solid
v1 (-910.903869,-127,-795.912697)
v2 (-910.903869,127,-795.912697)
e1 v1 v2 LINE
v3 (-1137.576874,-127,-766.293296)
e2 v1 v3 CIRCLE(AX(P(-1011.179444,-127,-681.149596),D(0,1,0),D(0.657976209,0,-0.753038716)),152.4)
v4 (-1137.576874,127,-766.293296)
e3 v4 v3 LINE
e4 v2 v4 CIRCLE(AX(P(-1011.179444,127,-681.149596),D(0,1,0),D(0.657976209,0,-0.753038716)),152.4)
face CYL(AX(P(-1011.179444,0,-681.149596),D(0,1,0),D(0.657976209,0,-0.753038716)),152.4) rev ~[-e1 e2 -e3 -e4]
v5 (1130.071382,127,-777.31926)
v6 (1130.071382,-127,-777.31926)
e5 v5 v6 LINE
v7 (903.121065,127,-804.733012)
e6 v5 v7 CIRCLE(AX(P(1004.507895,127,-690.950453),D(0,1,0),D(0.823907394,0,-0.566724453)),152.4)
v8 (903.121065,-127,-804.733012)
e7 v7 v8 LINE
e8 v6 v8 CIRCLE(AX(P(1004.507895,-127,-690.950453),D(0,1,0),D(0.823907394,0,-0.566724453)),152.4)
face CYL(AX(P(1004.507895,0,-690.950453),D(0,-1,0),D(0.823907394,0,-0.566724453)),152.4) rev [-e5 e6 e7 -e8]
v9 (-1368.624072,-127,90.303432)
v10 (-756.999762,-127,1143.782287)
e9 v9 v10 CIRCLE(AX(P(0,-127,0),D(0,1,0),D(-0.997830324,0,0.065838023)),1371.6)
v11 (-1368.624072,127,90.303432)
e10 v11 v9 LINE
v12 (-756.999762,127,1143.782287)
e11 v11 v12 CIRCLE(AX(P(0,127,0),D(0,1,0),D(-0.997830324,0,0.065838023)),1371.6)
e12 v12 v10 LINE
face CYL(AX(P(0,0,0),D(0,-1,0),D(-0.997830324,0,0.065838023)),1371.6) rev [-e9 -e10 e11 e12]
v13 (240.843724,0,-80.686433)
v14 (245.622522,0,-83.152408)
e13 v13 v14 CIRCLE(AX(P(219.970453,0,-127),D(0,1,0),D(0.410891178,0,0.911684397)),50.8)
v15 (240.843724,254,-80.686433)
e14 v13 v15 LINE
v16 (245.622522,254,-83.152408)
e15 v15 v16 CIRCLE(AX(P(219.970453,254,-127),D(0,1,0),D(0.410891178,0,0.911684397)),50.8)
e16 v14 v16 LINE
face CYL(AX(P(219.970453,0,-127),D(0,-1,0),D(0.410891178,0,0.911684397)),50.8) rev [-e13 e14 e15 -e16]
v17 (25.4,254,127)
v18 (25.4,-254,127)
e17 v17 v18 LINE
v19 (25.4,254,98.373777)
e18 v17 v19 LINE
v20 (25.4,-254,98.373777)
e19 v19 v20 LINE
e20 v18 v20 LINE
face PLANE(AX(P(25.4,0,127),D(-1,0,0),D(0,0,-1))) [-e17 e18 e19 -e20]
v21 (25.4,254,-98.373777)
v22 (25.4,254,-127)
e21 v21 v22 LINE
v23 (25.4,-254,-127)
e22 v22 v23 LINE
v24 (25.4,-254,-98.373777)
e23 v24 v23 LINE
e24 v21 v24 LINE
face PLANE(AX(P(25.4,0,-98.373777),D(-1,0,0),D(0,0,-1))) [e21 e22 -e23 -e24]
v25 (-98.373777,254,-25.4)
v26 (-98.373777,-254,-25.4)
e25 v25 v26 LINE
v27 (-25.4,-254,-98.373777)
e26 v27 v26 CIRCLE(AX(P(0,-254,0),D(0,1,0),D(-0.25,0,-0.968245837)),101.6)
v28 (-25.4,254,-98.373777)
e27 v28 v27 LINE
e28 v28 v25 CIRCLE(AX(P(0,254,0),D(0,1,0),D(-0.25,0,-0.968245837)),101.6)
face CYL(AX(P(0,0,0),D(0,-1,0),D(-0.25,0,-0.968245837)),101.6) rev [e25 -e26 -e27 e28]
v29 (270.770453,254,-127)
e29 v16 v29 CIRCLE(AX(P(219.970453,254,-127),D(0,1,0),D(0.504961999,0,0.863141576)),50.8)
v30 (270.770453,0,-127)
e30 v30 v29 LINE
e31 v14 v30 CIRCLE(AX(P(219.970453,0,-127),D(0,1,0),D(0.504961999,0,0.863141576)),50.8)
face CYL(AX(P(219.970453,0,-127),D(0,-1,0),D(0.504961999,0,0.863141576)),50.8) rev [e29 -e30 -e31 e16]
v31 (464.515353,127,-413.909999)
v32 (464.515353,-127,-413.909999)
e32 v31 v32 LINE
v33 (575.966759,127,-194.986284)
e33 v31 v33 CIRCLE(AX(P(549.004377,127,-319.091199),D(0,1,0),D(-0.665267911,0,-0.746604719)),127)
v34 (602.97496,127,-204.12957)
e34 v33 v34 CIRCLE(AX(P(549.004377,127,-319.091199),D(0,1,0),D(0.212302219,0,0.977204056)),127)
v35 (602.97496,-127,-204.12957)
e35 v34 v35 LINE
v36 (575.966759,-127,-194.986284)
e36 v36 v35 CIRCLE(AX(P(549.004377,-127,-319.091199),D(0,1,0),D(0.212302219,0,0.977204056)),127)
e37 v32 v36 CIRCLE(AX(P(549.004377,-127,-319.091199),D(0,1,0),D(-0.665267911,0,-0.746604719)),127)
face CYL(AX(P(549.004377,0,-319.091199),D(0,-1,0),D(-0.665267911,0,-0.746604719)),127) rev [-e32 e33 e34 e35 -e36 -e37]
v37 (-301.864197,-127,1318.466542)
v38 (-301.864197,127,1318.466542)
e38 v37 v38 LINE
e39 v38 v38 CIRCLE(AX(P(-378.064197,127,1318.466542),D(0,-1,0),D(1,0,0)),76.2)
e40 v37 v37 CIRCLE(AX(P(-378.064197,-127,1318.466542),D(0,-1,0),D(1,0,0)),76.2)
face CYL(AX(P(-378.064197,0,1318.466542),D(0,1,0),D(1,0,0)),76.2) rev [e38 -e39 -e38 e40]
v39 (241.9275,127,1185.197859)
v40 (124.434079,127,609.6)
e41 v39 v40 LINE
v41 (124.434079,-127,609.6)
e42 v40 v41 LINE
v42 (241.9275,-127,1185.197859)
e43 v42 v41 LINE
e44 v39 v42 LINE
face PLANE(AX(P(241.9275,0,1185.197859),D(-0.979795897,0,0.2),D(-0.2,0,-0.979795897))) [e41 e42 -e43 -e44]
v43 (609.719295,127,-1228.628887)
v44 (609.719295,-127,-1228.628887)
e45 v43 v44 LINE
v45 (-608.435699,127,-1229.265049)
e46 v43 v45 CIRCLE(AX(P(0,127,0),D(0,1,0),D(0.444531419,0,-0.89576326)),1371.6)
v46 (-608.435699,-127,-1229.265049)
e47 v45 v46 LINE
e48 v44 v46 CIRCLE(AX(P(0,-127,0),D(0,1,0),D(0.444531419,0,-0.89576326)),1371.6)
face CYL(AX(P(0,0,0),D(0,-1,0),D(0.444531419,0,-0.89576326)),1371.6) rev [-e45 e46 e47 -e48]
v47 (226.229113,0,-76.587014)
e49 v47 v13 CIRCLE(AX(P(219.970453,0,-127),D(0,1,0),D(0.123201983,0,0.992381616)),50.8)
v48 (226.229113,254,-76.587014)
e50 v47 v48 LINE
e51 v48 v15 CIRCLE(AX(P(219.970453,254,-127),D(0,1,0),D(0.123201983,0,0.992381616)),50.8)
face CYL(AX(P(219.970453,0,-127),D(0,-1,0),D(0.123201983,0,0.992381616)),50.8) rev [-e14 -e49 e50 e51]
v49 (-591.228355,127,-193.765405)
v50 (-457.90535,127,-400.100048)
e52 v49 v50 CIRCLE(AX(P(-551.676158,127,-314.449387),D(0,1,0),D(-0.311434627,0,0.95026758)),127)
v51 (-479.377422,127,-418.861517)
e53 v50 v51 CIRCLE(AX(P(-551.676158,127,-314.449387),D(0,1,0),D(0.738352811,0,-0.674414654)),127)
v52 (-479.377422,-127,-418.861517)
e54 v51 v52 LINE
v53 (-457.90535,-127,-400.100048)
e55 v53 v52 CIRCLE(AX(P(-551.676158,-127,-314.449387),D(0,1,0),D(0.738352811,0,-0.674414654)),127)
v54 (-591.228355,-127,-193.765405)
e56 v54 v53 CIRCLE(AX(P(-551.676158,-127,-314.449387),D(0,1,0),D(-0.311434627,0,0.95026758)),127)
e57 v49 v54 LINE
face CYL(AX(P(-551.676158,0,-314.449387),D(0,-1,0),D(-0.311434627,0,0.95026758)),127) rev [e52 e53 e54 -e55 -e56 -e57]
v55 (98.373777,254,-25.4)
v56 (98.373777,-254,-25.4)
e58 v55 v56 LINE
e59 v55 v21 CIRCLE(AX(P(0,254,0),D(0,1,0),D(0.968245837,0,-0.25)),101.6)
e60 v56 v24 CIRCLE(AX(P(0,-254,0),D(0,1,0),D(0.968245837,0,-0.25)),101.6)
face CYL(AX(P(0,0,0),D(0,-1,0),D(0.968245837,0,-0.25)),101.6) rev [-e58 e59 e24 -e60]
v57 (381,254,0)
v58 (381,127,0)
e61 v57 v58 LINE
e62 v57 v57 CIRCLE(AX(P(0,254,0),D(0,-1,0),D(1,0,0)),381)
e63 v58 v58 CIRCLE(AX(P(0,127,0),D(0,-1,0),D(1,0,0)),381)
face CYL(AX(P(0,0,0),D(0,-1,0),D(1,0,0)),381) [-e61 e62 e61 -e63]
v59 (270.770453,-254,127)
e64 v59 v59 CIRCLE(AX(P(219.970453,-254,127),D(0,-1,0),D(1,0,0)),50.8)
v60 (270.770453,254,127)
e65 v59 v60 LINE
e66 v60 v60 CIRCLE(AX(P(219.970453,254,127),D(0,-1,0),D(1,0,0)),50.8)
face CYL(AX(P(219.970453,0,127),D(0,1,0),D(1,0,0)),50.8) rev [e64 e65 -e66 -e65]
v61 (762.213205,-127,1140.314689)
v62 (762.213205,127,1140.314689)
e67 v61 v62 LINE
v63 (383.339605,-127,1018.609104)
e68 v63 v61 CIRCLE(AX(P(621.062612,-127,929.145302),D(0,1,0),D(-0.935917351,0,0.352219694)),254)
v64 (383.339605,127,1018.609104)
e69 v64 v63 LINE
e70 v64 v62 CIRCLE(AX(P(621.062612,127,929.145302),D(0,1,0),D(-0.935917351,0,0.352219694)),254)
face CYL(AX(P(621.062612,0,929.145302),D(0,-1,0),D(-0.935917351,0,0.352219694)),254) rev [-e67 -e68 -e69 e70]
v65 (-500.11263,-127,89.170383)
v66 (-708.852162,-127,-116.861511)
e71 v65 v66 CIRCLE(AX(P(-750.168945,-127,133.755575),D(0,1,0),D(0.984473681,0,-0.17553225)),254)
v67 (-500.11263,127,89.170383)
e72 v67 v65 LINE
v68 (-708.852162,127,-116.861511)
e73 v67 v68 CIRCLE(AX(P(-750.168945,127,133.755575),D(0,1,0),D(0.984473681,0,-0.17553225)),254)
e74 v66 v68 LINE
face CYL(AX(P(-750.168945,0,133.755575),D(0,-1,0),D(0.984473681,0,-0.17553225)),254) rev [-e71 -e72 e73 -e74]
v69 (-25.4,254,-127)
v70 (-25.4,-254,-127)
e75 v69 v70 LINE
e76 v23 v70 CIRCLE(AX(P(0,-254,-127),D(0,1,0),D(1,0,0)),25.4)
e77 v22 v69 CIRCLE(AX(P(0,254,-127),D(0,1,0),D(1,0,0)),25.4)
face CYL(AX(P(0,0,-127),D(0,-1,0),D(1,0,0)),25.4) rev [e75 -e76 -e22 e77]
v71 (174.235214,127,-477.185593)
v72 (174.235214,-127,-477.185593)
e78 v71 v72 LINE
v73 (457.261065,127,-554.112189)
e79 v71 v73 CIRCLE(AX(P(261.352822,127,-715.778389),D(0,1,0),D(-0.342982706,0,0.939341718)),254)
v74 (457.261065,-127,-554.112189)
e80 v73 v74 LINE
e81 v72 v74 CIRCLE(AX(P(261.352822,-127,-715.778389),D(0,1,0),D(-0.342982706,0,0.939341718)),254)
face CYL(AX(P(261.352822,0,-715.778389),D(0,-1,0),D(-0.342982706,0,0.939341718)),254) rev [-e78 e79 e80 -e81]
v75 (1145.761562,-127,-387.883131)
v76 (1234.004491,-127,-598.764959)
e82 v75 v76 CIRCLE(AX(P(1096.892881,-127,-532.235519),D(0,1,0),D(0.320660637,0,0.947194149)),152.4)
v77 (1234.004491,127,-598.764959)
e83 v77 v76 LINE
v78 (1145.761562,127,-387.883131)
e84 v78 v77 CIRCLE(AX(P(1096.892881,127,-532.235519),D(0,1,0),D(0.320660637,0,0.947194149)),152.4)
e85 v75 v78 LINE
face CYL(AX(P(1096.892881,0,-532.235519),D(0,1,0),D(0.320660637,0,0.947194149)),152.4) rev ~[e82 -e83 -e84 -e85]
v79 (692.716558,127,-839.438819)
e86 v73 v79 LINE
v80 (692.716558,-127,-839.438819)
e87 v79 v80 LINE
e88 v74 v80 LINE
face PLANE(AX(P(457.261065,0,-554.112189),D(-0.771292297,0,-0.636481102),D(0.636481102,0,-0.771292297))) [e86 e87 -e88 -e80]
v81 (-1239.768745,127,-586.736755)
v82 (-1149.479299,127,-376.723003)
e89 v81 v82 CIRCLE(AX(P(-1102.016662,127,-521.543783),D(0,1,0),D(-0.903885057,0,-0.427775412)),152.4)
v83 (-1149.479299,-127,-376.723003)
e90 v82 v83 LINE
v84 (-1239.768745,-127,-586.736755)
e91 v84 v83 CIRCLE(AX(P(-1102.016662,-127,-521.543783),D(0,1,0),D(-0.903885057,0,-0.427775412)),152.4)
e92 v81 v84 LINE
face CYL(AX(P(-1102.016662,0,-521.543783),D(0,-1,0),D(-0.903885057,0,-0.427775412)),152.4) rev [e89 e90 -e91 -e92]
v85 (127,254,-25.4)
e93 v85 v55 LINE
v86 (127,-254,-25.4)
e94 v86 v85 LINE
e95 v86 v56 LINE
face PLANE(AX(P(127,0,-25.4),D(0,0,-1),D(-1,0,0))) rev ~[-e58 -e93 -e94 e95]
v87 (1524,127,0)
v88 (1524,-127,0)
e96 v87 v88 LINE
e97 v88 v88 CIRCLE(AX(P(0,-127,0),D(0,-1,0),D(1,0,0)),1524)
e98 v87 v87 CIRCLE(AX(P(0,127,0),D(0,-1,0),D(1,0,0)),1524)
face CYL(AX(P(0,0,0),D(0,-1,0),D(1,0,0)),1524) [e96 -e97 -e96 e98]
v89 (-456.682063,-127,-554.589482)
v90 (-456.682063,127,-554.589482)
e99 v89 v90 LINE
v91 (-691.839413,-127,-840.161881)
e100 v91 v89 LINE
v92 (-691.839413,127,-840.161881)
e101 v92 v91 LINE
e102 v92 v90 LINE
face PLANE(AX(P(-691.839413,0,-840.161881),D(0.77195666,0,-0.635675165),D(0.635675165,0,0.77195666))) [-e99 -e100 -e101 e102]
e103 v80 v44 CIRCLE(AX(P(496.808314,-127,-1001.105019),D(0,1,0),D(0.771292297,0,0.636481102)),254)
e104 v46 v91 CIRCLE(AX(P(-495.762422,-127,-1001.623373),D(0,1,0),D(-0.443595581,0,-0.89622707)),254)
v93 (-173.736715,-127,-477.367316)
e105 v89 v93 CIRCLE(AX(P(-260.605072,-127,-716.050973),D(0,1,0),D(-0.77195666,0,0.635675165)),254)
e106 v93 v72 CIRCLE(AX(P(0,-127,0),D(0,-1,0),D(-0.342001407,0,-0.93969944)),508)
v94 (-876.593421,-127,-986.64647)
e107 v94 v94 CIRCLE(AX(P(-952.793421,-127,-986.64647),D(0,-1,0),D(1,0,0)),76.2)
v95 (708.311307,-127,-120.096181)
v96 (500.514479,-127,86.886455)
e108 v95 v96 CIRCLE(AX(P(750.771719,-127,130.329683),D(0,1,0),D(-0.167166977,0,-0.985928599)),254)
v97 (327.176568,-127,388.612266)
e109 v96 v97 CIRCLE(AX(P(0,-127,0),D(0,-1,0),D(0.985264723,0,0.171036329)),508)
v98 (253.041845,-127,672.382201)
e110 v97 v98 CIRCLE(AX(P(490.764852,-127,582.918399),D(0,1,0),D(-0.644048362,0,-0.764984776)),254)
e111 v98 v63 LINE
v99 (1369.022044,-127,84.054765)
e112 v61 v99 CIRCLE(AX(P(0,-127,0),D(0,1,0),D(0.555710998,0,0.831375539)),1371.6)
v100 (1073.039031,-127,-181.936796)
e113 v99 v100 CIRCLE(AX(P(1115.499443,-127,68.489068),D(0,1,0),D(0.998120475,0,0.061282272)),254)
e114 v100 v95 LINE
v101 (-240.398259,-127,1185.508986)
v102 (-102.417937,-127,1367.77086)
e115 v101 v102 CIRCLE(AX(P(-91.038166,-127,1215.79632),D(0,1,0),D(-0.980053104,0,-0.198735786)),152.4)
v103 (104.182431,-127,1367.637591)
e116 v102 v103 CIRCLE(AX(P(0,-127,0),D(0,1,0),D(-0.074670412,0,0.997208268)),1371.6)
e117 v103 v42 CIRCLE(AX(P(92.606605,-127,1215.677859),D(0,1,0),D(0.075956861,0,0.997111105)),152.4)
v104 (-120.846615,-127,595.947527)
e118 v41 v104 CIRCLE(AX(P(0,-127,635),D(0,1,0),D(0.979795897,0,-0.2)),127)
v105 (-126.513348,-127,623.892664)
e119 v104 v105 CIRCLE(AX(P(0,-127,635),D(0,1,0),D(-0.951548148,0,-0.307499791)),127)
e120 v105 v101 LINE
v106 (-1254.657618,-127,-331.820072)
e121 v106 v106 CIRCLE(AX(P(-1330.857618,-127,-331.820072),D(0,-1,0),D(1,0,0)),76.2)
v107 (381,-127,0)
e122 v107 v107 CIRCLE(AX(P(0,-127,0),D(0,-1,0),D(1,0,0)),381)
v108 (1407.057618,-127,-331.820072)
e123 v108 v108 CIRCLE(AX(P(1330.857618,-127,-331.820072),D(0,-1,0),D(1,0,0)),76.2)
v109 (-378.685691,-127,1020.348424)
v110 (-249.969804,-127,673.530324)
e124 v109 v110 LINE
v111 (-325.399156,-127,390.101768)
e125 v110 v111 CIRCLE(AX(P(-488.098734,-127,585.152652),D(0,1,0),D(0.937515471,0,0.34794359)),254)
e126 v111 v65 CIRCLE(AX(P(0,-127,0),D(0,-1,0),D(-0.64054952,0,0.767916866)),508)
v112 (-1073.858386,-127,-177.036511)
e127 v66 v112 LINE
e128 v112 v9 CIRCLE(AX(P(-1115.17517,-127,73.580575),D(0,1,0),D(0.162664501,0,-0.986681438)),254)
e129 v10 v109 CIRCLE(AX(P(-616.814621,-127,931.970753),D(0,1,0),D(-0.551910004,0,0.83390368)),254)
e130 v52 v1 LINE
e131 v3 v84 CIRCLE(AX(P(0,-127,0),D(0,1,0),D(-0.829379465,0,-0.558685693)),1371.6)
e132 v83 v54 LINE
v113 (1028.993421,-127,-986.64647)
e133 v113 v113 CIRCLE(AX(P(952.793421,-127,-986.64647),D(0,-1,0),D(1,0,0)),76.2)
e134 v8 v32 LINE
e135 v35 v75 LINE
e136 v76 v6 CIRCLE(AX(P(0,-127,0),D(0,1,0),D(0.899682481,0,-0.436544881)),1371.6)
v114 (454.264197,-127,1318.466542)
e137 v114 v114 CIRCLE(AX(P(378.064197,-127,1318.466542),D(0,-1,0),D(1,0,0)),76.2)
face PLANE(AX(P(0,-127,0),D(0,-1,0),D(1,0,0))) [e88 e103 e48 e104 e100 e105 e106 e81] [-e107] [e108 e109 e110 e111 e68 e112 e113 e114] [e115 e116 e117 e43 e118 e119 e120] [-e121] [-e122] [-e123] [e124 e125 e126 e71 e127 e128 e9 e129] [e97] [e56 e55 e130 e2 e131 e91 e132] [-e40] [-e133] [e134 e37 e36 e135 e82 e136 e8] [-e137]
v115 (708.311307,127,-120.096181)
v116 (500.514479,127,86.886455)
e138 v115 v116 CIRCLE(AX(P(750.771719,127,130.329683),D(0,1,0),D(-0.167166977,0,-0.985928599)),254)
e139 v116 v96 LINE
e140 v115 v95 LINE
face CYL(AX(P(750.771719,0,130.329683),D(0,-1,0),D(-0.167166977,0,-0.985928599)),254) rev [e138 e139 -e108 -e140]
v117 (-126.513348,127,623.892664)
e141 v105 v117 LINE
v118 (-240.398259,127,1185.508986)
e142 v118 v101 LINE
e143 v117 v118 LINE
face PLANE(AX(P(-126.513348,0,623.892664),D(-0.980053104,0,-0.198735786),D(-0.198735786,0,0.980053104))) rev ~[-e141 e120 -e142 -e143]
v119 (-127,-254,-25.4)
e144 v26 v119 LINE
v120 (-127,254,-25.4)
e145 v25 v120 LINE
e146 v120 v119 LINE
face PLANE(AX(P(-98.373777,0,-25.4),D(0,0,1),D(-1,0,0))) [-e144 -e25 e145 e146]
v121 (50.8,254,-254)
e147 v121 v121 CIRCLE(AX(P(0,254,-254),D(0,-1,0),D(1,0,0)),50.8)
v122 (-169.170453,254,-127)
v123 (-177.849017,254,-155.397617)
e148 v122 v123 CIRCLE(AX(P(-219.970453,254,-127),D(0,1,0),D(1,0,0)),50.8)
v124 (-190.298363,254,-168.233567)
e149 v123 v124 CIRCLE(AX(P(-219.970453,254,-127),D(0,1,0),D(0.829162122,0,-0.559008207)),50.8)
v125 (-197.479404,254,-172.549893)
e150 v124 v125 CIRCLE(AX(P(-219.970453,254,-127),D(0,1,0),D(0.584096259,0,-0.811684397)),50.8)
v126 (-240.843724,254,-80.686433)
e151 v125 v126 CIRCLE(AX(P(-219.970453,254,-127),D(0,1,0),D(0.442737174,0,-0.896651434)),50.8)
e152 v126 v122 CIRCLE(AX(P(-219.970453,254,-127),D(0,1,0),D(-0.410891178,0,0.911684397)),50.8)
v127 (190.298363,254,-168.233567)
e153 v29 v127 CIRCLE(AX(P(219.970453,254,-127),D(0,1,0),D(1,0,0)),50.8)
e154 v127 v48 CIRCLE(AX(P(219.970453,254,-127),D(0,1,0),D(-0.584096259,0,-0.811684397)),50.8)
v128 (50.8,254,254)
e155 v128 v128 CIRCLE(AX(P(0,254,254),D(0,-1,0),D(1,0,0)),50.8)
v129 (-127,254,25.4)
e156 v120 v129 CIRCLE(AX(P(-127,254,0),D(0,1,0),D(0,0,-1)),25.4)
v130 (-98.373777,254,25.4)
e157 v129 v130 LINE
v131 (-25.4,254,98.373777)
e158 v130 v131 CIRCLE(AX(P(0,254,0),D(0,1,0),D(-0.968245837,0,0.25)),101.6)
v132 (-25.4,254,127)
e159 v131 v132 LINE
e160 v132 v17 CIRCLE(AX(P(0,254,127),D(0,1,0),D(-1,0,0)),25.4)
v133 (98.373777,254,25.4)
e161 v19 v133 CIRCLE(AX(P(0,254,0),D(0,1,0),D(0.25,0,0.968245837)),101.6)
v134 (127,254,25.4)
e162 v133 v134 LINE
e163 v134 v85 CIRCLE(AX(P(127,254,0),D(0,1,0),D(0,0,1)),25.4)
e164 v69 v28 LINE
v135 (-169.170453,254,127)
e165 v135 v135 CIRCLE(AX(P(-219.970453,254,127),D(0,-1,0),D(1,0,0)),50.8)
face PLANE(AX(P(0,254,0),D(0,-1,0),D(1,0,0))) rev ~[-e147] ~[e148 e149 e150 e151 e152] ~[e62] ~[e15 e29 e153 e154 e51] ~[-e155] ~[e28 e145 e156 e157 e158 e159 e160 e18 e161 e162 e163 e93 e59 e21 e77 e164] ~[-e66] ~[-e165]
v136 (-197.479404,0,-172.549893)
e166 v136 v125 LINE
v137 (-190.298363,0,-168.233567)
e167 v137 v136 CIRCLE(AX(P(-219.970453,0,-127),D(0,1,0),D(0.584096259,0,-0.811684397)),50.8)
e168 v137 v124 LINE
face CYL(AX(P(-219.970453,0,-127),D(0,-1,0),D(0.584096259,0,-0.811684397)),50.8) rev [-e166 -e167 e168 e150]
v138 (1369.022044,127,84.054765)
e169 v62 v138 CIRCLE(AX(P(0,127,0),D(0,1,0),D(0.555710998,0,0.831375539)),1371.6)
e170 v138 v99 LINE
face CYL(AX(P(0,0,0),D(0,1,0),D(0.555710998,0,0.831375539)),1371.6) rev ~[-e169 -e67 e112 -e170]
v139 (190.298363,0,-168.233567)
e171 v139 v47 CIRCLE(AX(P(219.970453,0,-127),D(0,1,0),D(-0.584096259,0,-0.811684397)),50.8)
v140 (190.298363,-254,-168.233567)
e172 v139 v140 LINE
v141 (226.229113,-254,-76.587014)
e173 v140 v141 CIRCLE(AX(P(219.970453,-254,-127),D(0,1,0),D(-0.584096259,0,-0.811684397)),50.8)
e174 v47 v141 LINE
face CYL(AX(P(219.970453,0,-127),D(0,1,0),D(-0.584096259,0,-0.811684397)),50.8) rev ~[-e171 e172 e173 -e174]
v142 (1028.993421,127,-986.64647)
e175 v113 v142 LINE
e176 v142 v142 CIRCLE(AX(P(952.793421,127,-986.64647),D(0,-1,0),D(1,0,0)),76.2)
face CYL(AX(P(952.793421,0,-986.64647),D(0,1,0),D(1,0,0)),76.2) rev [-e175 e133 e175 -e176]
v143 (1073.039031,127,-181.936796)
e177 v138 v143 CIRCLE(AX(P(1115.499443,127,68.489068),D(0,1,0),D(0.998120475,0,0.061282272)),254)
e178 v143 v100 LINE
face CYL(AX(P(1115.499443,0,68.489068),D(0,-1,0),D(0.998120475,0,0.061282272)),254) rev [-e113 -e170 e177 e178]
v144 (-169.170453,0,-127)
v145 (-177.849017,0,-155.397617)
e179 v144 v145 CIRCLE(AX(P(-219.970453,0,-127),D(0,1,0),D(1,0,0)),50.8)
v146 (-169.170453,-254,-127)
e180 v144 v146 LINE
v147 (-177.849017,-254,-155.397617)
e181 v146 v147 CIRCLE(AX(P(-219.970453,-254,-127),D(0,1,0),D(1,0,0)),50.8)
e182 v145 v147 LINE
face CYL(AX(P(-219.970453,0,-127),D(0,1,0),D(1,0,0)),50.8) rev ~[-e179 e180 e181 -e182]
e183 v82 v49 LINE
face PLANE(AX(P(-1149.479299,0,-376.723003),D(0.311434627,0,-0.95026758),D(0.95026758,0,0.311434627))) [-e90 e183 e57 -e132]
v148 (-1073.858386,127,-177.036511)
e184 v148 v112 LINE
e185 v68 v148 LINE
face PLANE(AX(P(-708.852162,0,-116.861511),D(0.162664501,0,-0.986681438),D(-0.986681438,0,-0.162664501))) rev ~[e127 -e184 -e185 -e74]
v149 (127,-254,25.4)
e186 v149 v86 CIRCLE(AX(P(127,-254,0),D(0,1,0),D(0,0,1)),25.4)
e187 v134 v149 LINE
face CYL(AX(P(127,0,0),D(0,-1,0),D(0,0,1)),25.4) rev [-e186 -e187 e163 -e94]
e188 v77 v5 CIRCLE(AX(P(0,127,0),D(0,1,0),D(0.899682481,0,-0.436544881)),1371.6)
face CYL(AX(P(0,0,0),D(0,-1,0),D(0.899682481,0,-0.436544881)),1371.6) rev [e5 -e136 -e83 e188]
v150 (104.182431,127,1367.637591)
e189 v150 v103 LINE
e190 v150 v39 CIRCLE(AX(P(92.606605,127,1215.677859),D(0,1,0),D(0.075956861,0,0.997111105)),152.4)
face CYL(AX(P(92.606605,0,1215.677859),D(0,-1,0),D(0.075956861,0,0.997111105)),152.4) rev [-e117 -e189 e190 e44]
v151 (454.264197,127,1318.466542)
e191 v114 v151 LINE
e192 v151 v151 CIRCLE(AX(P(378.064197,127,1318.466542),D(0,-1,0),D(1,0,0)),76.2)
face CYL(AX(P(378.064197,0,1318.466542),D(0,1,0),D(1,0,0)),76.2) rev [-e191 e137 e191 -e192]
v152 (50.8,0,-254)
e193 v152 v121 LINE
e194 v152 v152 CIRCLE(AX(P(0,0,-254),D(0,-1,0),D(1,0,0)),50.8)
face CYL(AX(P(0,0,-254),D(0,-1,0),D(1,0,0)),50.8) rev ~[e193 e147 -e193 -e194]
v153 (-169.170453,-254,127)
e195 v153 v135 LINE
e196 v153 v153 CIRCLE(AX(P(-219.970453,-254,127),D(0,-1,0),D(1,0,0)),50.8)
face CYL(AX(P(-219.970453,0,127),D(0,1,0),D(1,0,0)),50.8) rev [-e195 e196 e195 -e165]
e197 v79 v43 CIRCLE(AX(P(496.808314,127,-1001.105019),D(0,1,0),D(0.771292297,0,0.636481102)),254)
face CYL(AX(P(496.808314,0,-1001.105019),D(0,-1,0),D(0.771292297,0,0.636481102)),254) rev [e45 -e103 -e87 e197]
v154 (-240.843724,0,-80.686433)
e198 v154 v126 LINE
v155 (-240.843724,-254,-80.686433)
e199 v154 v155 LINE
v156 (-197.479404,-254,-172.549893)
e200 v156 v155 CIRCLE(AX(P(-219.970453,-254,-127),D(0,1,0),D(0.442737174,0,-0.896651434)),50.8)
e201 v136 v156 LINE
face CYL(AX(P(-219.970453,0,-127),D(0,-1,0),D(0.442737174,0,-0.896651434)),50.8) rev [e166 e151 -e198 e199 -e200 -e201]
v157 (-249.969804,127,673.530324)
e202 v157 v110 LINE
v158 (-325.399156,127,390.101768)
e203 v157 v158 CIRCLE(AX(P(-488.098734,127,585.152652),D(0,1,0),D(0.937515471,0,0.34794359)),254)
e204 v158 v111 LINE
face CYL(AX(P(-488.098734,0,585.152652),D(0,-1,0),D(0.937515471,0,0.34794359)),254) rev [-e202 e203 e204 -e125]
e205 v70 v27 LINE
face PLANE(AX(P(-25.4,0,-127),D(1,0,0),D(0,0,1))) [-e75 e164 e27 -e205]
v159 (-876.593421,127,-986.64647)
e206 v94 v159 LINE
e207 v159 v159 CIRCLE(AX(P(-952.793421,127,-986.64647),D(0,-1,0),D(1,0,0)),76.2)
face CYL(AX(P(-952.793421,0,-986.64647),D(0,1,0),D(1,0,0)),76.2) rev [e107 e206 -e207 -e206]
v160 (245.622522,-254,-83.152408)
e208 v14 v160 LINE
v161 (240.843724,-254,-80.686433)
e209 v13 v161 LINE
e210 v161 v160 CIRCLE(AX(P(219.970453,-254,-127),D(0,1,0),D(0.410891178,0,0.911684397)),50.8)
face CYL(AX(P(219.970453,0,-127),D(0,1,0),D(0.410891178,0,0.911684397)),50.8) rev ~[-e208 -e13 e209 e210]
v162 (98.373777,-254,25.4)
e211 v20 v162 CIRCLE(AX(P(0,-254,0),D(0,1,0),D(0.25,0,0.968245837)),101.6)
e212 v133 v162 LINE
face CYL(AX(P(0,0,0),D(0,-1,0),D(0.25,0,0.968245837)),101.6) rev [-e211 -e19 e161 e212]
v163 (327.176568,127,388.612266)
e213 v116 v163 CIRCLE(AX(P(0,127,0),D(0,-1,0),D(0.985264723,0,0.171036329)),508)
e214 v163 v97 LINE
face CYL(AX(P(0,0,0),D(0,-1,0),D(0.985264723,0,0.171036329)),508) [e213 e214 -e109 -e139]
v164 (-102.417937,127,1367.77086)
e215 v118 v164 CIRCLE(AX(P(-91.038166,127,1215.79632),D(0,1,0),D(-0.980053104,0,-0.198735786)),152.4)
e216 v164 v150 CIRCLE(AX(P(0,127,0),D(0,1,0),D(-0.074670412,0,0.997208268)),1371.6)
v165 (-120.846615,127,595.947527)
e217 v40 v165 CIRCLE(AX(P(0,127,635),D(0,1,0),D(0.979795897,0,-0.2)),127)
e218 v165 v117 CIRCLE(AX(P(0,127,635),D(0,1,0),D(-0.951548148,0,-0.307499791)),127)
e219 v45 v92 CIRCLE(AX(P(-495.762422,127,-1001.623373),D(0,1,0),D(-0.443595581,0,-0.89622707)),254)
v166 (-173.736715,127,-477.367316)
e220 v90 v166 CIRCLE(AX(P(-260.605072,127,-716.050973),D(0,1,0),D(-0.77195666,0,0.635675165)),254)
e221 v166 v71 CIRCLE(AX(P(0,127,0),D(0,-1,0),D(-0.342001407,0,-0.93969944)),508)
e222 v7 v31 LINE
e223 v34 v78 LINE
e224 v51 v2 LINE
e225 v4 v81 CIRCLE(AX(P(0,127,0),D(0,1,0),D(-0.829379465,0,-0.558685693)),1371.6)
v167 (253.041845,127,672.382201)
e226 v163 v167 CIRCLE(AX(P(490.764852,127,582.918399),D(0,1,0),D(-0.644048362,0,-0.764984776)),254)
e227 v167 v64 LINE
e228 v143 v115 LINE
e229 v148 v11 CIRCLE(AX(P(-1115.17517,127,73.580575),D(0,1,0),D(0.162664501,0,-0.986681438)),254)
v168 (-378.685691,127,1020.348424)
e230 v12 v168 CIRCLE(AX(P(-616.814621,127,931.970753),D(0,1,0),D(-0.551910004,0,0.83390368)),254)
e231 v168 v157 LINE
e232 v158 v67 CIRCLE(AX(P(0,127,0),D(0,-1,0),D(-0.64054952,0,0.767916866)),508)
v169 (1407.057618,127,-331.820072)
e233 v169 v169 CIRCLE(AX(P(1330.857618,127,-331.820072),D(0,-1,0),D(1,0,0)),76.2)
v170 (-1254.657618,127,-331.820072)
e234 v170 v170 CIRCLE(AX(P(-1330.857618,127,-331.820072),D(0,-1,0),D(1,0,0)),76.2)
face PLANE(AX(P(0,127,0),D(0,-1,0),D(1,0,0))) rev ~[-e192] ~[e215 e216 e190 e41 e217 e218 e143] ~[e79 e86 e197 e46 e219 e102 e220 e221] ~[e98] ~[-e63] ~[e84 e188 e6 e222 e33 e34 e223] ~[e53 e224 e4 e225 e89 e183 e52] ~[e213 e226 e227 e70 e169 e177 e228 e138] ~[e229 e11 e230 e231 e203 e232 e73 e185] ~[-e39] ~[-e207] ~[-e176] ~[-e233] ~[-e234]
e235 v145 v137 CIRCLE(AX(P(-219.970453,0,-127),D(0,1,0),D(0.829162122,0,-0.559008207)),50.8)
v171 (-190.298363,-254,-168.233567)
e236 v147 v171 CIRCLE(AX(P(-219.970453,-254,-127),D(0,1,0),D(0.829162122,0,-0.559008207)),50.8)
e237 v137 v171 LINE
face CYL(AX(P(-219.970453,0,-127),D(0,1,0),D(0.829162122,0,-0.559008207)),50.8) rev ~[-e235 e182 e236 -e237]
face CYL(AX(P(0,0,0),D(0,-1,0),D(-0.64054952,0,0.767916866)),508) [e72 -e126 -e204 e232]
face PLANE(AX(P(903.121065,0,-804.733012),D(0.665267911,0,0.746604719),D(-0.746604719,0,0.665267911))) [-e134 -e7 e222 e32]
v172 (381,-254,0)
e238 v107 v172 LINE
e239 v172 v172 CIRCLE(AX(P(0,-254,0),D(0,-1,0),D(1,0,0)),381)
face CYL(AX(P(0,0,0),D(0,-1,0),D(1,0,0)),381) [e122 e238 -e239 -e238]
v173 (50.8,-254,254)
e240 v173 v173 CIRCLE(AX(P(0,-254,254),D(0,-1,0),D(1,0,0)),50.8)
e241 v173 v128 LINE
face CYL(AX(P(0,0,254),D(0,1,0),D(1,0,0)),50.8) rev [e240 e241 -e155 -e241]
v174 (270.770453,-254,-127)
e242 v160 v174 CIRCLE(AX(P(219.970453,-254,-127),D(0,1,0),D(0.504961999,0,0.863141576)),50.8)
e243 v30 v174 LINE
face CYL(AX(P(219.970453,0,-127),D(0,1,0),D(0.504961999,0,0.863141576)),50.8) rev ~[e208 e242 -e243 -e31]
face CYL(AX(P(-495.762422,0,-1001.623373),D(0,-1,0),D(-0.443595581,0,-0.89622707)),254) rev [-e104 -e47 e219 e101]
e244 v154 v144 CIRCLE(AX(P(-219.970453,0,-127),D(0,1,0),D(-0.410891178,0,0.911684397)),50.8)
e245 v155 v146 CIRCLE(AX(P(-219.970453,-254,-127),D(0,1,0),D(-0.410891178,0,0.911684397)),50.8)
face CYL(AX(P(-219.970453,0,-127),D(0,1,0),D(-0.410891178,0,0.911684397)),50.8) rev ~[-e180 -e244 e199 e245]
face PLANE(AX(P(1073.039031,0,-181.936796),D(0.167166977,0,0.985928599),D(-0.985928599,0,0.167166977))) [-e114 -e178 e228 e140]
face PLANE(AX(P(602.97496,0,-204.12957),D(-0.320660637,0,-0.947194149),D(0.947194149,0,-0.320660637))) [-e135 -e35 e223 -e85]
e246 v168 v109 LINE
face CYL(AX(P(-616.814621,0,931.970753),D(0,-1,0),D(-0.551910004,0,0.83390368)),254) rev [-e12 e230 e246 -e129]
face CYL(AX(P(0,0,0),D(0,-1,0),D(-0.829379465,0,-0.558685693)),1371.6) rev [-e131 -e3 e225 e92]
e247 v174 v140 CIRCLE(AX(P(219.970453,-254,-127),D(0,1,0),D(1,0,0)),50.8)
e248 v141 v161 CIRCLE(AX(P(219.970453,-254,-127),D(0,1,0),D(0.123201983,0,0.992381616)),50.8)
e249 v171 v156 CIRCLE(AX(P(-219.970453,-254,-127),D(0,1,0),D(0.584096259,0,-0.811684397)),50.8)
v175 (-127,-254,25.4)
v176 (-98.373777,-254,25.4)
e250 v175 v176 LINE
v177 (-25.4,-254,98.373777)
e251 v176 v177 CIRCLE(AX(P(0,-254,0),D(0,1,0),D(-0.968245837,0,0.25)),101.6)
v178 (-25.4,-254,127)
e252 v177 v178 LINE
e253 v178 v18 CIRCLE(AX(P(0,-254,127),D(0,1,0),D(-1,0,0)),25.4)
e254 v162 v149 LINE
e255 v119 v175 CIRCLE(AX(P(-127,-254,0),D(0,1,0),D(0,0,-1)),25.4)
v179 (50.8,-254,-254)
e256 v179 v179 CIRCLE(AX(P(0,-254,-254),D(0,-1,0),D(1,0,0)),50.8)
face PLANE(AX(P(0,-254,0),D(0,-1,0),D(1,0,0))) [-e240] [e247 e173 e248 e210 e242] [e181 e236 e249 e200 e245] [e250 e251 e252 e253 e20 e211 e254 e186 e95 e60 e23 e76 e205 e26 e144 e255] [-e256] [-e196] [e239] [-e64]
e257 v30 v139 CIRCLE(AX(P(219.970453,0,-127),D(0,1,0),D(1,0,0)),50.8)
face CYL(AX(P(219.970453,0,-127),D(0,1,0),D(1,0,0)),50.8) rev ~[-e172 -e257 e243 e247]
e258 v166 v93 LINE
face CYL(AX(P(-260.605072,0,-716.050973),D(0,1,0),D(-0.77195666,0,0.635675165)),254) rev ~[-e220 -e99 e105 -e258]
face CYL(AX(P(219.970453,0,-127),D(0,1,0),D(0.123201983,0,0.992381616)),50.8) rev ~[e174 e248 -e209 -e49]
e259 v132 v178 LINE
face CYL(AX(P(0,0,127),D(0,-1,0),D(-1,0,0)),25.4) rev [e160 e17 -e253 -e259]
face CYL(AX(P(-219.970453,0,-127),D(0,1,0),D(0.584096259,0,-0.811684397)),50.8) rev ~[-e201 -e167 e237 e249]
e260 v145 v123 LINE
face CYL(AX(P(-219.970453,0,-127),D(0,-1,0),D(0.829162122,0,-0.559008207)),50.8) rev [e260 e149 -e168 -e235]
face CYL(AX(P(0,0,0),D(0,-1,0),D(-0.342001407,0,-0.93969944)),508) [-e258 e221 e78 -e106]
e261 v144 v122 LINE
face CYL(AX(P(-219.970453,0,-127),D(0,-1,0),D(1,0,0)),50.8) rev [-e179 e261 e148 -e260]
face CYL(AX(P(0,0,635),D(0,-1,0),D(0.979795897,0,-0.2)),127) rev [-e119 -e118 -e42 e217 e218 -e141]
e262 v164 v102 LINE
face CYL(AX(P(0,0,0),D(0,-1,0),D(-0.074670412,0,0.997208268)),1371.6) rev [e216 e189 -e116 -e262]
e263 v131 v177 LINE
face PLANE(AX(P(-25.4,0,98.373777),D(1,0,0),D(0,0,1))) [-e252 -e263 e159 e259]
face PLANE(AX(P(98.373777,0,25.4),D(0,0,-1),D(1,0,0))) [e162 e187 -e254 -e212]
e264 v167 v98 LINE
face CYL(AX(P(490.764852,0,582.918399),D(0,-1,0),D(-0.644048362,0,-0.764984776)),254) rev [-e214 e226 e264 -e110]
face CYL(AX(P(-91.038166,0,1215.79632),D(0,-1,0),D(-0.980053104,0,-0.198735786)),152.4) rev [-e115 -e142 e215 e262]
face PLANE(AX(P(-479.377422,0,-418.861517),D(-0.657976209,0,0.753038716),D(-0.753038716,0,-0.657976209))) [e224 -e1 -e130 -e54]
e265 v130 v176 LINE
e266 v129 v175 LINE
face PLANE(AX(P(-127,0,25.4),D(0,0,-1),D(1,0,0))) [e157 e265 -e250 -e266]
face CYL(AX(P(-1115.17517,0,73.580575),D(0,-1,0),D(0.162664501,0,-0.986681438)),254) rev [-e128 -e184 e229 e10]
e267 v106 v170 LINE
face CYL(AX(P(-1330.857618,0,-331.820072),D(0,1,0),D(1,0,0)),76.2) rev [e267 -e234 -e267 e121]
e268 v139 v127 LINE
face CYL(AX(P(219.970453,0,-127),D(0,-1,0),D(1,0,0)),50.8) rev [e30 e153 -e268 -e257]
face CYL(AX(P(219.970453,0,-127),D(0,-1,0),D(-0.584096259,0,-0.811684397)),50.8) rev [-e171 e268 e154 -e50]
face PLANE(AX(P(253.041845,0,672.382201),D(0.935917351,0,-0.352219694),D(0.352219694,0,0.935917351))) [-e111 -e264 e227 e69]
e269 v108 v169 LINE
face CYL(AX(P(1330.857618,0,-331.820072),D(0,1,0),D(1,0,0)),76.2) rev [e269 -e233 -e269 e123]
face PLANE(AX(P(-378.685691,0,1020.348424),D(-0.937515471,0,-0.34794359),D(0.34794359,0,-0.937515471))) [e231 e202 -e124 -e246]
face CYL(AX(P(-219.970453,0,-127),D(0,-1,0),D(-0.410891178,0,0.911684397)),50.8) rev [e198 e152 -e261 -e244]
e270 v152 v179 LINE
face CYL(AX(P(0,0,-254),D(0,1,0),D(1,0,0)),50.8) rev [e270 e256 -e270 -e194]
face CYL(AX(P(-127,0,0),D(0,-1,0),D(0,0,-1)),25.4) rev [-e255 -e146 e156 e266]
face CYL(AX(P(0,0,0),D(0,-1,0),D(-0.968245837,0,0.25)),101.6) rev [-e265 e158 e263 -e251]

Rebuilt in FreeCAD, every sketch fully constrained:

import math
import FreeCAD as App
import Part
import Sketcher

V = App.Vector
Q = App.Units.Quantity

doc = App.newDocument("Part")
body = doc.addObject("PartDesign::Body", "Body")

# Sketch on XZ plane
sketch1 = doc.addObject("Sketcher::SketchObject", "Sketch")
body.addObject(sketch1)
sketch1.AttachmentSupport = (doc.XZ_Plane, [""])
sketch1.MapMode = "FlatFace"
sketch1.addGeometry([
    Part.Circle(V(0, 0, 0), V(0, 0, 1), 1524),  # 0
    Part.Circle(V(-953, -987, 0), V(0, 0, 1), 76),  # 1
    Part.ArcOfCircle(Part.Circle(V(-552, -314, 0), V(0, 0, 1), 127), math.radians(-42), math.radians(108)),  # 2
    Part.ArcOfCircle(Part.Circle(V(-552, -314, 0), V(0, 0, 1), 127), math.radians(-55.3), math.radians(-42.41)),  # 3
    Part.LineSegment(V(-479, -419, 0), V(-911, -796, 0)),  # 4
    Part.ArcOfCircle(Part.Circle(V(-1011, -681, 0), V(0, 0, 1), 152), math.radians(-146), math.radians(-49)),  # 5
    Part.ArcOfCircle(Part.Circle(V(0, 0, 0), V(0, 0, 1), 1372), math.radians(-154.67), math.radians(-146.04)),  # 6
    Part.ArcOfCircle(Part.Circle(V(-1102, -522, 0), V(0, 0, 1), 152), math.radians(108), math.radians(205)),  # 7
    Part.LineSegment(V(-1149, -377, 0), V(-591, -194, 0)),  # 8
    Part.Circle(V(-1331, -332, 0), V(0, 0, 1), 76),  # 9
    Part.Circle(V(0, 0, 0), V(0, 0, 1), 381),  # 10
    Part.ArcOfCircle(Part.Circle(V(497, -1001, 0), V(0, 0, 1), 254), math.radians(-64), math.radians(40)),  # 11
    Part.ArcOfCircle(Part.Circle(V(0, 0, 0), V(0, 0, 1), 1372), math.radians(-116), math.radians(-64)),  # 12
    Part.ArcOfCircle(Part.Circle(V(-496, -1002, 0), V(0, 0, 1), 254), math.radians(141), math.radians(244)),  # 13
    Part.LineSegment(V(-692, -840, 0), V(-457, -555, 0)),  # 14
    Part.ArcOfCircle(Part.Circle(V(-261, -716, 0), V(0, 0, 1), 254), math.radians(70), math.radians(141)),  # 15
    Part.ArcOfCircle(Part.Circle(V(0, 0, 0), V(0, 0, 1), 508), math.radians(-110), math.radians(-70)),  # 16
    Part.ArcOfCircle(Part.Circle(V(261, -716, 0), V(0, 0, 1), 254), math.radians(40), math.radians(110)),  # 17
    Part.LineSegment(V(457, -554, 0), V(693, -839, 0)),  # 18
    Part.Circle(V(953, -987, 0), V(0, 0, 1), 76),  # 19
    Part.ArcOfCircle(Part.Circle(V(549, -319, 0), V(0, 0, 1), 127), math.radians(78), math.radians(228)),  # 20
    Part.ArcOfCircle(Part.Circle(V(549, -319, 0), V(0, 0, 1), 127), math.radians(64.85), math.radians(77.74)),  # 21
    Part.LineSegment(V(603, -204, 0), V(1146, -388, 0)),  # 22
    Part.ArcOfCircle(Part.Circle(V(1097, -532, 0), V(0, 0, 1), 152), math.radians(-26), math.radians(71)),  # 23
    Part.ArcOfCircle(Part.Circle(V(0, 0, 0), V(0, 0, 1), 1372), math.radians(-34.52), math.radians(-25.88)),  # 24
    Part.ArcOfCircle(Part.Circle(V(1005, -691, 0), V(0, 0, 1), 152), math.radians(-132), math.radians(-35)),  # 25
    Part.LineSegment(V(903, -805, 0), V(465, -414, 0)),  # 26
    Part.Circle(V(1331, -332, 0), V(0, 0, 1), 76),  # 27
    Part.LineSegment(V(-379, 1020, 0), V(-250, 674, 0)),  # 28
    Part.ArcOfCircle(Part.Circle(V(-488, 585, 0), V(0, 0, 1), 254), math.radians(-50), math.radians(20)),  # 29
    Part.ArcOfCircle(Part.Circle(V(0, 0, 0), V(0, 0, 1), 508), math.radians(130), math.radians(170)),  # 30
    Part.ArcOfCircle(Part.Circle(V(-750, 134, 0), V(0, 0, 1), 254), math.radians(-81), math.radians(-10)),  # 31
    Part.LineSegment(V(-709, -117, 0), V(-1074, -177, 0)),  # 32
    Part.ArcOfCircle(Part.Circle(V(-1115, 74, 0), V(0, 0, 1), 254), math.radians(176), math.radians(279)),  # 33
    Part.ArcOfCircle(Part.Circle(V(0, 0, 0), V(0, 0, 1), 1372), math.radians(123), math.radians(176)),  # 34
    Part.ArcOfCircle(Part.Circle(V(-617, 932, 0), V(0, 0, 1), 254), math.radians(20), math.radians(123)),  # 35
    Part.Circle(V(-378, 1318, 0), V(0, 0, 1), 76),  # 36
    Part.ArcOfCircle(Part.Circle(V(0, 0, 0), V(0, 0, 1), 508), math.radians(10), math.radians(50)),  # 37
    Part.ArcOfCircle(Part.Circle(V(491, 583, 0), V(0, 0, 1), 254), math.radians(159), math.radians(230)),  # 38
    Part.LineSegment(V(253, 672, 0), V(383, 1019, 0)),  # 39
    Part.ArcOfCircle(Part.Circle(V(621, 929, 0), V(0, 0, 1), 254), math.radians(56), math.radians(159)),  # 40
    Part.ArcOfCircle(Part.Circle(V(0, 0, 0), V(0, 0, 1), 1372), math.radians(4), math.radians(56)),  # 41
    Part.ArcOfCircle(Part.Circle(V(1115, 68, 0), V(0, 0, 1), 254), math.radians(-100), math.radians(4)),  # 42
    Part.LineSegment(V(1073, -182, 0), V(708, -120, 0)),  # 43
    Part.ArcOfCircle(Part.Circle(V(751, 130, 0), V(0, 0, 1), 254), math.radians(-170), math.radians(-100)),  # 44
    Part.LineSegment(V(242, 1185, 0), V(124, 610, 0)),  # 45
    Part.ArcOfCircle(Part.Circle(V(0, 635, 0), V(0, 0, 1), 127), math.radians(-162), math.radians(-12)),  # 46
    Part.ArcOfCircle(Part.Circle(V(0, 635, 0), V(0, 0, 1), 127), math.radians(-174.98), math.radians(-162.09)),  # 47
    Part.LineSegment(V(-127, 624, 0), V(-240, 1186, 0)),  # 48
    Part.ArcOfCircle(Part.Circle(V(-91, 1216, 0), V(0, 0, 1), 152), math.radians(94), math.radians(191)),  # 49
    Part.ArcOfCircle(Part.Circle(V(0, 0, 0), V(0, 0, 1), 1372), math.radians(85.64), math.radians(94.28)),  # 50
    Part.ArcOfCircle(Part.Circle(V(93, 1216, 0), V(0, 0, 1), 152), math.radians(-12), math.radians(86)),  # 51
    Part.Circle(V(378, 1318, 0), V(0, 0, 1), 76),  # 52
], False)
sketch1.addConstraint([
    Sketcher.Constraint("Tangent", 2, 1, 3, 2),
    Sketcher.Constraint("Coincident", 3, 1, 4, 1),
    Sketcher.Constraint("Tangent", 4, 2, 5, 2),
    Sketcher.Constraint("Tangent", 5, 1, 6, 2),
    Sketcher.Constraint("Tangent", 6, 1, 7, 2),
    Sketcher.Constraint("Tangent", 7, 1, 8, 1),
    Sketcher.Constraint("Tangent", 8, 2, 2, 2),
    Sketcher.Constraint("Tangent", 11, 1, 12, 2),
    Sketcher.Constraint("Tangent", 12, 1, 13, 2),
    Sketcher.Constraint("Tangent", 13, 1, 14, 1),
    Sketcher.Constraint("Tangent", 14, 2, 15, 2),
    Sketcher.Constraint("Tangent", 15, 1, 16, 1),
    Sketcher.Constraint("Tangent", 16, 2, 17, 2),
    Sketcher.Constraint("Tangent", 17, 1, 18, 1),
    Sketcher.Constraint("Tangent", 18, 2, 11, 2),
    Sketcher.Constraint("Tangent", 20, 1, 21, 2),
    Sketcher.Constraint("Coincident", 21, 1, 22, 1),
    Sketcher.Constraint("Tangent", 22, 2, 23, 2),
    Sketcher.Constraint("Tangent", 23, 1, 24, 2),
    Sketcher.Constraint("Tangent", 24, 1, 25, 2),
    Sketcher.Constraint("Tangent", 25, 1, 26, 1),
    Sketcher.Constraint("Tangent", 26, 2, 20, 2),
    Sketcher.Constraint("Tangent", 28, 2, 29, 2),
    Sketcher.Constraint("Tangent", 29, 1, 30, 1),
    Sketcher.Constraint("Tangent", 30, 2, 31, 2),
    Sketcher.Constraint("Tangent", 31, 1, 32, 1),
    Sketcher.Constraint("Tangent", 32, 2, 33, 2),
    Sketcher.Constraint("Tangent", 33, 1, 34, 2),
    Sketcher.Constraint("Tangent", 34, 1, 35, 2),
    Sketcher.Constraint("Tangent", 35, 1, 28, 1),
    Sketcher.Constraint("Tangent", 37, 2, 38, 2),
    Sketcher.Constraint("Tangent", 38, 1, 39, 1),
    Sketcher.Constraint("Tangent", 39, 2, 40, 2),
    Sketcher.Constraint("Tangent", 40, 1, 41, 2),
    Sketcher.Constraint("Tangent", 41, 1, 42, 2),
    Sketcher.Constraint("Tangent", 42, 1, 43, 1),
    Sketcher.Constraint("Tangent", 43, 2, 44, 2),
    Sketcher.Constraint("Tangent", 44, 1, 37, 1),
    Sketcher.Constraint("Tangent", 45, 2, 46, 2),
    Sketcher.Constraint("Tangent", 46, 1, 47, 2),
    Sketcher.Constraint("Coincident", 47, 1, 48, 1),
    Sketcher.Constraint("Tangent", 48, 2, 49, 2),
    Sketcher.Constraint("Tangent", 49, 1, 50, 2),
    Sketcher.Constraint("Tangent", 50, 1, 51, 2),
    Sketcher.Constraint("Tangent", 51, 1, 45, 1),
    Sketcher.Constraint("Coincident", 0, 3, -1, 1),
    Sketcher.Constraint("Coincident", 6, 3, -1, 1),
    Sketcher.Constraint("Coincident", 10, 3, -1, 1),
    Sketcher.Constraint("Coincident", 12, 3, -1, 1),
    Sketcher.Constraint("Coincident", 16, 3, -1, 1),
    Sketcher.Constraint("Coincident", 24, 3, -1, 1),
    Sketcher.Constraint("Coincident", 30, 3, -1, 1),
    Sketcher.Constraint("Coincident", 34, 3, -1, 1),
    Sketcher.Constraint("Coincident", 37, 3, -1, 1),
    Sketcher.Constraint("Coincident", 41, 3, -1, 1),
    Sketcher.Constraint("Coincident", 50, 3, -1, 1),
    Sketcher.Constraint("Equal", 2, 3),
    Sketcher.Constraint("Equal", 5, 7),
    Sketcher.Constraint("Equal", 1, 9),
    Sketcher.Constraint("Equal", 6, 12),
    Sketcher.Constraint("Equal", 11, 13),
    Sketcher.Constraint("Equal", 13, 15),
    Sketcher.Constraint("Equal", 15, 17),
    Sketcher.Constraint("Equal", 9, 19),
    Sketcher.Constraint("Equal", 3, 20),
    Sketcher.Constraint("Equal", 20, 21),
    Sketcher.Constraint("Equal", 7, 23),
    Sketcher.Constraint("Equal", 12, 24),
    Sketcher.Constraint("Equal", 23, 25),
    Sketcher.Constraint("Equal", 19, 27),
    Sketcher.Constraint("Equal", 17, 29),
    Sketcher.Constraint("Equal", 16, 30),
    Sketcher.Constraint("Equal", 29, 31),
    Sketcher.Constraint("Equal", 31, 33),
    Sketcher.Constraint("Equal", 24, 34),
    Sketcher.Constraint("Equal", 33, 35),
    Sketcher.Constraint("Equal", 27, 36),
    Sketcher.Constraint("Equal", 30, 37),
    Sketcher.Constraint("Equal", 35, 38),
    Sketcher.Constraint("Equal", 38, 40),
    Sketcher.Constraint("Equal", 34, 41),
    Sketcher.Constraint("Equal", 40, 42),
    Sketcher.Constraint("Equal", 42, 44),
    Sketcher.Constraint("Equal", 21, 46),
    Sketcher.Constraint("Equal", 46, 47),
    Sketcher.Constraint("Equal", 25, 49),
    Sketcher.Constraint("Equal", 41, 50),
    Sketcher.Constraint("Equal", 49, 51),
    Sketcher.Constraint("Equal", 36, 52),
    Sketcher.Constraint("Symmetric", 1, 3, 19, 3, -2),
    Sketcher.Constraint("Symmetric", 9, 3, 27, 3, -2),
    Sketcher.Constraint("Symmetric", 36, 3, 52, 3, -2),
    Sketcher.Constraint("PointOnObject", 46, 3, -2),
    Sketcher.Constraint("Equal", 14, 18),
    Sketcher.Constraint("Equal", 4, 22),
    Sketcher.Constraint("Equal", 8, 26),
    Sketcher.Constraint("Equal", 18, 28),
    Sketcher.Constraint("Equal", 28, 32),
    Sketcher.Constraint("Equal", 32, 39),
    Sketcher.Constraint("Equal", 39, 43),
    Sketcher.Constraint("Equal", 26, 45),
    Sketcher.Constraint("Equal", 22, 48),
    Sketcher.Constraint("Diameter", 0, Q("120 in")),
    Sketcher.Constraint("Diameter", 1, Q("6 in")),
    Sketcher.Constraint("Diameter", 10, Q("30 in")),
    Sketcher.Constraint("Radius", 2, Q("5 in")),
    Sketcher.Constraint("Radius", 5, Q("6 in")),
    Sketcher.Constraint("Radius", 6, Q("54 in")),
    Sketcher.Constraint("Radius", 11, Q("10 in")),
    Sketcher.Constraint("Radius", 16, Q("20 in")),
    Sketcher.Constraint("DistanceY", -1, 1, 46, 3, Q("25 in")),
    Sketcher.Constraint("DistanceY", -1, 1, 45, 2, Q("24 in")),
    Sketcher.Constraint("DistanceY", 20, 3, -1, 1, Q("319.091199 mm")),
    Sketcher.Constraint("DistanceY", -1, 1, 38, 3, Q("582.918399 mm")),
    Sketcher.Constraint("DistanceY", 26, 2, -1, 1, Q("413.909999 mm")),
    Sketcher.Constraint("DistanceX", 1, 3, -1, 1, Q("952.793421 mm")),
    Sketcher.Constraint("DistanceY", 1, 3, -1, 1, Q("986.64647 mm")),
    Sketcher.Constraint("DistanceX", 7, 3, -1, 1, Q("1102.016662 mm")),
    Sketcher.Constraint("DistanceX", 9, 3, -1, 1, Q("1330.857618 mm")),
    Sketcher.Constraint("DistanceY", 11, 3, -1, 1, Q("1001.105019 mm")),
    Sketcher.Constraint("DistanceX", 13, 3, -1, 1, Q("495.762422 mm")),
    Sketcher.Constraint("DistanceX", 15, 3, -1, 1, Q("260.605072 mm")),
    Sketcher.Constraint("DistanceX", -1, 1, 23, 3, Q("1096.892881 mm")),
    Sketcher.Constraint("DistanceY", -1, 1, 29, 3, Q("585.152652 mm")),
    Sketcher.Constraint("DistanceX", 33, 3, -1, 1, Q("1115.17517 mm")),
    Sketcher.Constraint("DistanceX", -1, 1, 44, 3, Q("750.771719 mm")),
    Sketcher.Constraint("DistanceY", -1, 1, 49, 3, Q("1215.79632 mm")),
    Sketcher.Constraint("DistanceX", 2, 1, -1, 1, Q("457.90535 mm")),
    Sketcher.Constraint("DistanceY", 2, 1, -1, 1, Q("400.100048 mm")),
    Sketcher.Constraint("DistanceX", 4, 2, -1, 1, Q("910.903869 mm")),
    Sketcher.Constraint("DistanceX", -1, 1, 20, 1, Q("575.966759 mm")),
    Sketcher.Constraint("DistanceX", -1, 1, 21, 1, Q("602.97496 mm")),
    Sketcher.Constraint("DistanceY", 9, 3, -1, 1, Q("331.820072 mm")),
    Sketcher.Constraint("DistanceX", 36, 3, -1, 1, Q("378.064197 mm")),
    Sketcher.Constraint("DistanceY", -1, 1, 36, 3, Q("1318.466542 mm")),
    Sketcher.Constraint("DistanceX", 46, 1, -1, 1, Q("120.846615 mm")),
])
pad1 = doc.addObject("PartDesign::Pad", "Pad")
body.addObject(pad1)
pad1.Profile = sketch1
pad1.Length = Q("10 in")
pad1.Midplane = True

# Sketch on XZ plane
sketch2 = doc.addObject("Sketcher::SketchObject", "Sketch001")
body.addObject(sketch2)
sketch2.AttachmentSupport = (doc.XZ_Plane, [""])
sketch2.MapMode = "FlatFace"
sketch2.addGeometry([
    Part.Circle(V(0, 0, 0), V(0, 0, 1), 381),  # 0
    Part.ArcOfCircle(Part.Circle(V(-220, -127, 0), V(0, 0, 1), 51), math.radians(114), math.radians(296)),  # 1
    Part.ArcOfCircle(Part.Circle(V(-220, -127, 0), V(0, 0, 1), 51), math.radians(0), math.radians(114)),  # 2
    Part.ArcOfCircle(Part.Circle(V(-220, -127, 0), V(0, 0, 1), 51), math.radians(-34), math.radians(0)),  # 3
    Part.ArcOfCircle(Part.Circle(V(-220, -127, 0), V(0, 0, 1), 51), math.radians(-54), math.radians(-34)),  # 4
    Part.ArcOfCircle(Part.Circle(V(-220, -127, 0), V(0, 0, 1), 51), math.radians(-63.72), math.radians(-54.26)),  # 5
    Part.Circle(V(0, -254, 0), V(0, 0, 1), 51),  # 6
    Part.ArcOfCircle(Part.Circle(V(220, -127, 0), V(0, 0, 1), 51), math.radians(59.67), math.radians(65.74)),  # 7
    Part.ArcOfCircle(Part.Circle(V(220, -127, 0), V(0, 0, 1), 51), math.radians(0), math.radians(60)),  # 8
    Part.ArcOfCircle(Part.Circle(V(220, -127, 0), V(0, 0, 1), 51), math.radians(-126), math.radians(0)),  # 9
    Part.ArcOfCircle(Part.Circle(V(220, -127, 0), V(0, 0, 1), 51), math.radians(83), math.radians(234)),  # 10
    Part.ArcOfCircle(Part.Circle(V(220, -127, 0), V(0, 0, 1), 51), math.radians(65.74), math.radians(82.92)),  # 11
    Part.Circle(V(-220, 127, 0), V(0, 0, 1), 51),  # 12
    Part.LineSegment(V(-127, 25, 0), V(-98, 25, 0)),  # 13
    Part.ArcOfCircle(Part.Circle(V(0, 0, 0), V(0, 0, 1), 102), math.radians(104), math.radians(166)),  # 14
    Part.LineSegment(V(-25, 98, 0), V(-25, 127, 0)),  # 15
    Part.ArcOfCircle(Part.Circle(V(0, 127, 0), V(0, 0, 1), 25), math.radians(0), math.radians(180)),  # 16
    Part.LineSegment(V(25, 127, 0), V(25, 98, 0)),  # 17
    Part.ArcOfCircle(Part.Circle(V(0, 0, 0), V(0, 0, 1), 102), math.radians(14), math.radians(76)),  # 18
    Part.LineSegment(V(98, 25, 0), V(127, 25, 0)),  # 19
    Part.ArcOfCircle(Part.Circle(V(127, 0, 0), V(0, 0, 1), 25), math.radians(-90), math.radians(90)),  # 20
    Part.LineSegment(V(127, -25, 0), V(98, -25, 0)),  # 21
    Part.ArcOfCircle(Part.Circle(V(0, 0, 0), V(0, 0, 1), 102), math.radians(-76), math.radians(-14)),  # 22
    Part.LineSegment(V(25, -98, 0), V(25, -127, 0)),  # 23
    Part.ArcOfCircle(Part.Circle(V(0, -127, 0), V(0, 0, 1), 25), math.radians(180), math.radians(360)),  # 24
    Part.LineSegment(V(-25, -127, 0), V(-25, -98, 0)),  # 25
    Part.ArcOfCircle(Part.Circle(V(0, 0, 0), V(0, 0, 1), 102), math.radians(-166), math.radians(-104)),  # 26
    Part.LineSegment(V(-98, -25, 0), V(-127, -25, 0)),  # 27
    Part.ArcOfCircle(Part.Circle(V(-127, 0, 0), V(0, 0, 1), 25), math.radians(90), math.radians(270)),  # 28
    Part.Circle(V(220, 127, 0), V(0, 0, 1), 51),  # 29
    Part.Circle(V(0, 254, 0), V(0, 0, 1), 51),  # 30
], False)
sketch2.addConstraint([
    Sketcher.Constraint("Tangent", 1, 1, 2, 2),
    Sketcher.Constraint("Tangent", 2, 1, 3, 2),
    Sketcher.Constraint("Tangent", 3, 1, 4, 2),
    Sketcher.Constraint("Tangent", 4, 1, 5, 2),
    Sketcher.Constraint("Tangent", 5, 1, 1, 2),
    Sketcher.Constraint("Tangent", 7, 1, 8, 2),
    Sketcher.Constraint("Tangent", 8, 1, 9, 2),
    Sketcher.Constraint("Tangent", 9, 1, 10, 2),
    Sketcher.Constraint("Tangent", 10, 1, 11, 2),
    Sketcher.Constraint("Tangent", 11, 1, 7, 2),
    Sketcher.Constraint("Coincident", 13, 2, 14, 2),
    Sketcher.Constraint("Coincident", 14, 1, 15, 1),
    Sketcher.Constraint("Tangent", 15, 2, 16, 2),
    Sketcher.Constraint("Tangent", 16, 1, 17, 1),
    Sketcher.Constraint("Coincident", 17, 2, 18, 2),
    Sketcher.Constraint("Coincident", 18, 1, 19, 1),
    Sketcher.Constraint("Tangent", 19, 2, 20, 2),
    Sketcher.Constraint("Tangent", 20, 1, 21, 1),
    Sketcher.Constraint("Coincident", 21, 2, 22, 2),
    Sketcher.Constraint("Coincident", 22, 1, 23, 1),
    Sketcher.Constraint("Tangent", 23, 2, 24, 2),
    Sketcher.Constraint("Tangent", 24, 1, 25, 1),
    Sketcher.Constraint("Coincident", 25, 2, 26, 2),
    Sketcher.Constraint("Coincident", 26, 1, 27, 1),
    Sketcher.Constraint("Tangent", 27, 2, 28, 2),
    Sketcher.Constraint("Tangent", 28, 1, 13, 1),
    Sketcher.Constraint("Horizontal", 13),
    Sketcher.Constraint("Vertical", 15),
    Sketcher.Constraint("Vertical", 17),
    Sketcher.Constraint("Horizontal", 19),
    Sketcher.Constraint("Horizontal", 21),
    Sketcher.Constraint("Vertical", 23),
    Sketcher.Constraint("Vertical", 25),
    Sketcher.Constraint("Horizontal", 27),
    Sketcher.Constraint("Coincident", 0, 3, -1, 1),
    Sketcher.Constraint("Coincident", 14, 3, -1, 1),
    Sketcher.Constraint("Coincident", 18, 3, -1, 1),
    Sketcher.Constraint("Coincident", 22, 3, -1, 1),
    Sketcher.Constraint("Coincident", 26, 3, -1, 1),
    Sketcher.Constraint("Coincident", 3, 3, 1, 3),
    Sketcher.Constraint("Coincident", 9, 3, 7, 3),
    Sketcher.Constraint("Equal", 5, 6),
    Sketcher.Constraint("Equal", 6, 7),
    Sketcher.Constraint("Equal", 11, 12),
    Sketcher.Constraint("Equal", 14, 18),
    Sketcher.Constraint("Equal", 16, 20),
    Sketcher.Constraint("Equal", 18, 22),
    Sketcher.Constraint("Equal", 20, 24),
    Sketcher.Constraint("Equal", 22, 26),
    Sketcher.Constraint("Equal", 24, 28),
    Sketcher.Constraint("Equal", 12, 29),
    Sketcher.Constraint("Equal", 29, 30),
    Sketcher.Constraint("Symmetric", 7, 3, 12, 3, -1, 1),
    Sketcher.Constraint("Symmetric", 16, 3, 24, 3, -1, 1),
    Sketcher.Constraint("Symmetric", 20, 3, 28, 3, -1, 1),
    Sketcher.Constraint("Symmetric", 1, 3, 29, 3, -1, 1),
    Sketcher.Constraint("Symmetric", 6, 3, 30, 3, -1, 1),
    Sketcher.Constraint("Symmetric", 1, 3, 7, 3, -2),
    Sketcher.Constraint("PointOnObject", 6, 3, -2),
    Sketcher.Constraint("PointOnObject", 16, 3, -2),
    Sketcher.Constraint("PointOnObject", 20, 3, -1),
    Sketcher.Constraint("Horizontal", 12, 3, 16, 3),
    Sketcher.Constraint("Horizontal", 24, 3, 2, 1),
    Sketcher.Constraint("Horizontal", 2, 1, 8, 1),
    Sketcher.Constraint("Horizontal", 4, 1, 9, 1),
    Sketcher.Constraint("Horizontal", 1, 1, 11, 1),
    Sketcher.Constraint("Equal", 27, 15),
    Sketcher.Constraint("Diameter", 0, Q("30 in")),
    Sketcher.Constraint("Diameter", 6, Q("4 in")),
    Sketcher.Constraint("Radius", 14, Q("4 in")),
    Sketcher.Constraint("Radius", 16, Q("1 in")),
    Sketcher.Constraint("DistanceY", 1, 3, -1, 1, Q("5 in")),
    Sketcher.Constraint("DistanceY", 6, 3, -1, 1, Q("10 in")),
    Sketcher.Constraint("DistanceX", 1, 1, 5, 3, Q("20.873272 mm")),
    Sketcher.Constraint("DistanceY", 4, 1, 3, 1, Q("12.83595 mm")),
    Sketcher.Constraint("DistanceX", 4, 1, 2, 1, Q("21.12791 mm")),
    Sketcher.Constraint("DistanceX", 5, 1, 4, 1, Q("7.181042 mm")),
    Sketcher.Constraint("DistanceX", 8, 3, 7, 1, Q("25.65207 mm")),
    Sketcher.Constraint("DistanceX", 10, 1, 7, 1, Q("19.393409 mm")),
    Sketcher.Constraint("DistanceX", 1, 3, -1, 1, Q("219.970453 mm")),
])
pad2 = doc.addObject("PartDesign::Pad", "Pad001")
body.addObject(pad2)
pad2.Profile = sketch2
pad2.Length = Q("20 in")
pad2.Midplane = True

doc.recompute()
